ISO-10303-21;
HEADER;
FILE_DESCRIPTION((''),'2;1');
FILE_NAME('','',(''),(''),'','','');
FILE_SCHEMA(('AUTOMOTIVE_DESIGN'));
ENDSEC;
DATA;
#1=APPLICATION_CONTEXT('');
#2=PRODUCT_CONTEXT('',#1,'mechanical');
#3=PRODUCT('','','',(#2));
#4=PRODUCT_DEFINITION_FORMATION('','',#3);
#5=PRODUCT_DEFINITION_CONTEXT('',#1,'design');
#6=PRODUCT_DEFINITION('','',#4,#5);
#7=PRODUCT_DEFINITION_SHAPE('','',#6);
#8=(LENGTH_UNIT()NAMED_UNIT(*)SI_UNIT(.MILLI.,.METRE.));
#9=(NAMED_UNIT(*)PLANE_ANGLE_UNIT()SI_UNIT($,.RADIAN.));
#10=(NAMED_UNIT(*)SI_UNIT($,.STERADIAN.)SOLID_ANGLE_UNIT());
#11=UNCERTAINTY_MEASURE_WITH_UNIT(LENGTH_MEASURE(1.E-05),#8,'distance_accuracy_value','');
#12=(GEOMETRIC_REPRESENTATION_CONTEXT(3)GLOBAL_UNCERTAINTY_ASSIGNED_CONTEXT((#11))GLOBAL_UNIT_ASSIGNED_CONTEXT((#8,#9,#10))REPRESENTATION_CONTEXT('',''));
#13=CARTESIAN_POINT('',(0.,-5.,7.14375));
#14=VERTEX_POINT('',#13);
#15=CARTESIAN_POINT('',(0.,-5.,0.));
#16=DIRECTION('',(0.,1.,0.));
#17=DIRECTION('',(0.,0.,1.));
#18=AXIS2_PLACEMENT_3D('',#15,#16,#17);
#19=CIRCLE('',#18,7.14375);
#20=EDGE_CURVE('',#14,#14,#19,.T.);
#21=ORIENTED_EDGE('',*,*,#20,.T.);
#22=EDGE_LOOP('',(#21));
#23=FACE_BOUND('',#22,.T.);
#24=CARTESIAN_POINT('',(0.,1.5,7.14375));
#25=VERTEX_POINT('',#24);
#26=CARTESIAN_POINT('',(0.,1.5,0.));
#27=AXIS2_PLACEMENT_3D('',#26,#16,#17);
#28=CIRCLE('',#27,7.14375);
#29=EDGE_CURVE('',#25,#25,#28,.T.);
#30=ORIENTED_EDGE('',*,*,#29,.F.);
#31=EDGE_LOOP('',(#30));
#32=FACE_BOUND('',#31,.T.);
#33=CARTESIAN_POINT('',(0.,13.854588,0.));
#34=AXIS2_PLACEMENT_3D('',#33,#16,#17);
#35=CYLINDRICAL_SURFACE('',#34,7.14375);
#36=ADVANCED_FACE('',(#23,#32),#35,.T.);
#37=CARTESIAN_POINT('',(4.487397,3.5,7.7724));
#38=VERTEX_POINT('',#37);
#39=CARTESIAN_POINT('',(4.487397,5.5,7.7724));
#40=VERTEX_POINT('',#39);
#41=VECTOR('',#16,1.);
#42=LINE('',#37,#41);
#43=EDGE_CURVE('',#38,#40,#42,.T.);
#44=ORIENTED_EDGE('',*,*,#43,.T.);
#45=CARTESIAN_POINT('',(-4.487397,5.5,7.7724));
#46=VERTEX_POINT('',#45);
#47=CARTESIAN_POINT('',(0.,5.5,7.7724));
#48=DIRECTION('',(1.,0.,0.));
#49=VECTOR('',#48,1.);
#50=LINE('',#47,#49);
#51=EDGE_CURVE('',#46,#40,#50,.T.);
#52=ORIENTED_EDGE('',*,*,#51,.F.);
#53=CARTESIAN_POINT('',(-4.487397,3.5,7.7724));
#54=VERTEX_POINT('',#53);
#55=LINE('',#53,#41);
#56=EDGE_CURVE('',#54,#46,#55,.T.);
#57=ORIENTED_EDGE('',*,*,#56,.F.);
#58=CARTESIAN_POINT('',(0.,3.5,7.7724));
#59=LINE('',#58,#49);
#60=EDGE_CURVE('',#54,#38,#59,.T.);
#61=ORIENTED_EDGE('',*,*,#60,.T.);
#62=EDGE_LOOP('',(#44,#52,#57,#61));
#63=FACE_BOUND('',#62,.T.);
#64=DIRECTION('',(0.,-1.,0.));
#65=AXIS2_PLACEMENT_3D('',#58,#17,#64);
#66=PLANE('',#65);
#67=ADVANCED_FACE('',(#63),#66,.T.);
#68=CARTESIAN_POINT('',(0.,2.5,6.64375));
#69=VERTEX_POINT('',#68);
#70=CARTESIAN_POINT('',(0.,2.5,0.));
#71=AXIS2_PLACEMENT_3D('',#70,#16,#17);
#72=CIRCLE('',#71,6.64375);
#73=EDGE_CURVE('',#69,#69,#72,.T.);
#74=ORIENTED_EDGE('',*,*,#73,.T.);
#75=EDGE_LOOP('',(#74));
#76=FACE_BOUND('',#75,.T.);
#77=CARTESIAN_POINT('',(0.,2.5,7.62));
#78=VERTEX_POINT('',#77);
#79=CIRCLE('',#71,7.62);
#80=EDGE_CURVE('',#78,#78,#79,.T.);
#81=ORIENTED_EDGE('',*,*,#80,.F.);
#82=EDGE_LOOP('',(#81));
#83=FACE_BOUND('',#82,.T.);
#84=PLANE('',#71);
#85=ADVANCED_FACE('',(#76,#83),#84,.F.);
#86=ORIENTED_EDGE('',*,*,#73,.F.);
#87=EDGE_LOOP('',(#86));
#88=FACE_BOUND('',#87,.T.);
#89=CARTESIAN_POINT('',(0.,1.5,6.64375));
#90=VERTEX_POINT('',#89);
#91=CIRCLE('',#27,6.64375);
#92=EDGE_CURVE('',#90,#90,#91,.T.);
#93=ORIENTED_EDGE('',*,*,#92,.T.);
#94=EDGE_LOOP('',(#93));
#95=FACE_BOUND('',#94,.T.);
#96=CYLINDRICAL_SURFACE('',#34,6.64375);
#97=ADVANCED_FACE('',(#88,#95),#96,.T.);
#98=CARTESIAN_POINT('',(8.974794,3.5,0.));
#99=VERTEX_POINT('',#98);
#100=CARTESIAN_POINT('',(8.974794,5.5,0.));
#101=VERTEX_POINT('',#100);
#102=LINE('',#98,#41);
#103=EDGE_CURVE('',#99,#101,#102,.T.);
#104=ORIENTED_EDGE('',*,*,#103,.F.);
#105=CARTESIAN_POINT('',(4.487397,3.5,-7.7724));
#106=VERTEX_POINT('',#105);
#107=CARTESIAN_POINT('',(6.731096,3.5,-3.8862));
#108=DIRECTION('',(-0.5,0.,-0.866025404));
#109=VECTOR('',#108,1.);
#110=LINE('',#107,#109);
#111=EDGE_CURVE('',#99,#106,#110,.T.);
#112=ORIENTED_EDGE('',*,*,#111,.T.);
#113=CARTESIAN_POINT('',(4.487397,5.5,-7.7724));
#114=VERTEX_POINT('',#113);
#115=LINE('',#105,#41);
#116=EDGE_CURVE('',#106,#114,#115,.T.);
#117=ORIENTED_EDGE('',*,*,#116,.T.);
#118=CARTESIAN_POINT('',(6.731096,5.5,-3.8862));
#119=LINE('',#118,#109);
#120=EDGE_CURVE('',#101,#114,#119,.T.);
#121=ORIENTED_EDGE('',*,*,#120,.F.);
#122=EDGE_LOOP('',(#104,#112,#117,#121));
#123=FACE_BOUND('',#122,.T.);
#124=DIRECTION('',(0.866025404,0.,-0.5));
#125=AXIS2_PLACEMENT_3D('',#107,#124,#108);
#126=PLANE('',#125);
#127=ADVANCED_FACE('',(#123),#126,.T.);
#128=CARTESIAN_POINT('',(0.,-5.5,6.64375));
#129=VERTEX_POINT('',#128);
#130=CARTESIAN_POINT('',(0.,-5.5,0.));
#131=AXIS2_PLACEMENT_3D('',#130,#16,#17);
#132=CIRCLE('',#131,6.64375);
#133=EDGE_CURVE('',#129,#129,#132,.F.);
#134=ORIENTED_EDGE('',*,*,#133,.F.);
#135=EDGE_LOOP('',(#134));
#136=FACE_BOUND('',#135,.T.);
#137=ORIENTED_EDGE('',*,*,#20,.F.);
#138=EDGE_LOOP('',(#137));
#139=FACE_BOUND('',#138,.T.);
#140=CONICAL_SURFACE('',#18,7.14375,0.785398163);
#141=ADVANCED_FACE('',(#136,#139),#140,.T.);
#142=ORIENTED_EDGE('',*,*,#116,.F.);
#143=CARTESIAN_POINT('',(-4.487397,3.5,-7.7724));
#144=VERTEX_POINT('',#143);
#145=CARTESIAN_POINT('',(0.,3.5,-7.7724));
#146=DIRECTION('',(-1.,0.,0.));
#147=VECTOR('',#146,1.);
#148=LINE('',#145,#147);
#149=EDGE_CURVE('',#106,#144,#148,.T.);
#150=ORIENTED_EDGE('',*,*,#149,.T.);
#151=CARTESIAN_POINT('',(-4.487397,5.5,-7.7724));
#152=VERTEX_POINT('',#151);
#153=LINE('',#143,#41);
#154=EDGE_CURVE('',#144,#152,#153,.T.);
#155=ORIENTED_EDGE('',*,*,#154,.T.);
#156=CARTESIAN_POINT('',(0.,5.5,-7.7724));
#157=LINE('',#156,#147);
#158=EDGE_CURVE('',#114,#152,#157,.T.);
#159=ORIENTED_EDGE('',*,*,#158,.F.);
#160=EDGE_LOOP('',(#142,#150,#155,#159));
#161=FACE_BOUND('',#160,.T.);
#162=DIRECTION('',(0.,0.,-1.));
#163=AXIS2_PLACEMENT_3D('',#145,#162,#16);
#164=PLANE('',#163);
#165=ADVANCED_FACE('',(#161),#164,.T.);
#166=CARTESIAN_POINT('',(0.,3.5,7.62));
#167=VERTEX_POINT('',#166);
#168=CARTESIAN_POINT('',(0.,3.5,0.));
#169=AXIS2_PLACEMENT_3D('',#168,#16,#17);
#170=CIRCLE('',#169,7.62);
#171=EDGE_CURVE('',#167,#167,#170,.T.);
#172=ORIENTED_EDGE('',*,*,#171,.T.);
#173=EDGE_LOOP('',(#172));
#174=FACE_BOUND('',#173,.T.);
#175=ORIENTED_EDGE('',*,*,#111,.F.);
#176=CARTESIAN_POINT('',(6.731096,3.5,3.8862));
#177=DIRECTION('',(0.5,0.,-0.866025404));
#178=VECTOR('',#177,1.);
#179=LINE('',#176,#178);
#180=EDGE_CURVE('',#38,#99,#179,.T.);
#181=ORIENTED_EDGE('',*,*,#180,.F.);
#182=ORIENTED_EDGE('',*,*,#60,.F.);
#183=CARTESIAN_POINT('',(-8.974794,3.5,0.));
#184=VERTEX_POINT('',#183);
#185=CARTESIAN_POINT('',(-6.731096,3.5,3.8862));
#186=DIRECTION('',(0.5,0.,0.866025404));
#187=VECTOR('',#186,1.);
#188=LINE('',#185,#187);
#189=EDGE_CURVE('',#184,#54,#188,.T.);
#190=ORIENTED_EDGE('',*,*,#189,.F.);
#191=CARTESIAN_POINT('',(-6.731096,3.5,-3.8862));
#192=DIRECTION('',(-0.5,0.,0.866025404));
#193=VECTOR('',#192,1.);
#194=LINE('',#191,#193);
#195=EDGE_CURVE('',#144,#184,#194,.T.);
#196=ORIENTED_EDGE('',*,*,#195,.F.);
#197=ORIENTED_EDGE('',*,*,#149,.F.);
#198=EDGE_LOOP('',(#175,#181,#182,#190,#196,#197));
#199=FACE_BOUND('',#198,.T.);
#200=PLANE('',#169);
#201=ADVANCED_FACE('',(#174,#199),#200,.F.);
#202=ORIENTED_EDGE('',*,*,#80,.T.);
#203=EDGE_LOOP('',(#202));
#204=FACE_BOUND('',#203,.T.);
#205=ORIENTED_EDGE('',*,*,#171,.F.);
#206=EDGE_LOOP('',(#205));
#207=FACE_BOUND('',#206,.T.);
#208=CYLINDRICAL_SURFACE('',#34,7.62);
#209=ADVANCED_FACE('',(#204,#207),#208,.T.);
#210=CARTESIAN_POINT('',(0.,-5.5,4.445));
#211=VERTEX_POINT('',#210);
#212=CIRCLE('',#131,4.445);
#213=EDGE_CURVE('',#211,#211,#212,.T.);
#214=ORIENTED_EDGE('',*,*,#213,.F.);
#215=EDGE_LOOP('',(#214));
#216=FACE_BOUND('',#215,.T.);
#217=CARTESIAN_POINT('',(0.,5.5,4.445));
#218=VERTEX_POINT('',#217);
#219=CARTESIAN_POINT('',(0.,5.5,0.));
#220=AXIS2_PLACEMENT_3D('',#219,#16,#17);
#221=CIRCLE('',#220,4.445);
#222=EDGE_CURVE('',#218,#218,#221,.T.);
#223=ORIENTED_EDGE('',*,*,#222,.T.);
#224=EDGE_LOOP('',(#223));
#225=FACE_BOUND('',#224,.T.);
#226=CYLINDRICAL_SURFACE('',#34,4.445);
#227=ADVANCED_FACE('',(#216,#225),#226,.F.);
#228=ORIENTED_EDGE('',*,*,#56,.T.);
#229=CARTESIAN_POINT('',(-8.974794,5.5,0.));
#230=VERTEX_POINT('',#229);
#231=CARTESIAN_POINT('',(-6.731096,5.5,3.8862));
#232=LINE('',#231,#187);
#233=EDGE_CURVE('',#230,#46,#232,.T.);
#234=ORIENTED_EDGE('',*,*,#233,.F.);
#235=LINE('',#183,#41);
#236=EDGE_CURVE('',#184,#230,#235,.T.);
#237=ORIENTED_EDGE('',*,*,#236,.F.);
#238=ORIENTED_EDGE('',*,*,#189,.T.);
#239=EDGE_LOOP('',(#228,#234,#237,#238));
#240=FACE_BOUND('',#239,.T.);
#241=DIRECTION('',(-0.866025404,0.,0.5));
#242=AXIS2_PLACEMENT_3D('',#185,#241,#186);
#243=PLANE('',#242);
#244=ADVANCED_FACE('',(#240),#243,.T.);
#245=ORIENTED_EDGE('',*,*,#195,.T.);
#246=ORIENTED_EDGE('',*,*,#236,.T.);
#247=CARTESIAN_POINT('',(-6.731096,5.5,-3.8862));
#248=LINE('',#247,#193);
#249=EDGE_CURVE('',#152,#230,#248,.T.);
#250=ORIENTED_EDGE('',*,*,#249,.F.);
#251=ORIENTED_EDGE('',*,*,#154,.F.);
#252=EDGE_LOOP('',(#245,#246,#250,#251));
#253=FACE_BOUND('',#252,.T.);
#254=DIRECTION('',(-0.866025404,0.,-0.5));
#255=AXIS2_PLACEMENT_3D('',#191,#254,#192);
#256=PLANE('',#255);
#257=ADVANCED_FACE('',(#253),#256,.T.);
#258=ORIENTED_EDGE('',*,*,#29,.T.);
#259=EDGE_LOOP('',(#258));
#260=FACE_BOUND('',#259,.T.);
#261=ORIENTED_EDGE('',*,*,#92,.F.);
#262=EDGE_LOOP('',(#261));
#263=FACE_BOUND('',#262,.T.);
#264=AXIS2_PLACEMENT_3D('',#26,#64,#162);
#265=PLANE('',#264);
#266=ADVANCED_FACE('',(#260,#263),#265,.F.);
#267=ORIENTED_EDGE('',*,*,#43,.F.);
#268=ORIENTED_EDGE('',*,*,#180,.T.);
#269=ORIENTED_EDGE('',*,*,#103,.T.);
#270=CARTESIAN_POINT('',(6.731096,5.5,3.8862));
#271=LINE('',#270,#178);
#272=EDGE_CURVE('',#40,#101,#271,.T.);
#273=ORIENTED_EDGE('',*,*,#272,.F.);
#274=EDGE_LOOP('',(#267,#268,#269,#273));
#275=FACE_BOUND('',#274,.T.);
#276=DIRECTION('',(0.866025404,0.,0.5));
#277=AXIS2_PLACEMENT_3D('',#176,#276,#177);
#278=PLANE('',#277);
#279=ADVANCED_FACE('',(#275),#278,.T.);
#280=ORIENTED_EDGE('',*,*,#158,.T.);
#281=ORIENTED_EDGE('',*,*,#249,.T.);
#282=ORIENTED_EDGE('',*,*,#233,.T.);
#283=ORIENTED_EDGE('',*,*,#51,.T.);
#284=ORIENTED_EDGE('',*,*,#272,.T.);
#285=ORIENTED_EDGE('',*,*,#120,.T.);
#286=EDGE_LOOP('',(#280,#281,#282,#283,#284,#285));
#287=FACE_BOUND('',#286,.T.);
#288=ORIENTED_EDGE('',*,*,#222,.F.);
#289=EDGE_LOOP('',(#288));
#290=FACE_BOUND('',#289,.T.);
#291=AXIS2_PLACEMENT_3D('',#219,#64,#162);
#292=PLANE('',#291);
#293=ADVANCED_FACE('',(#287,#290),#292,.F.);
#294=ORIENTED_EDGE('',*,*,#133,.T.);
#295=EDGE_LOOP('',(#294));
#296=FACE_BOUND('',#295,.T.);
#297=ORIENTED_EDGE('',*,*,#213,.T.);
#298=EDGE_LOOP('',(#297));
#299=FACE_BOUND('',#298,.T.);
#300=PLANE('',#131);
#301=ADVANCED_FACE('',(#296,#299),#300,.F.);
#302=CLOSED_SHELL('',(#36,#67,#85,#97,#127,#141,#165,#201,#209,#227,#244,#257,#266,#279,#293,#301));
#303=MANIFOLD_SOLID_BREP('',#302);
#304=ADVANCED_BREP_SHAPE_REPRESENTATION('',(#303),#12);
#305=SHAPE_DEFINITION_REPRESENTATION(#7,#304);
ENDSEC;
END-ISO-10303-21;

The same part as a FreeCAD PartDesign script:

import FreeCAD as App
import Part
import Sketcher

V = App.Vector
Q = App.Units.Quantity


def edges_at(feature, points):
    """Names of the edges that pass closest to the given points."""
    edges = feature.Shape.Edges
    near = lambda p: min(range(len(edges)), key=lambda i: edges[i].distToShape(Part.Vertex(*p))[0])
    return sorted({f"Edge{near(p) + 1}" for p in points})


def add_polygon(sketch, points):
    """Adds a closed chain of lines whose ends are joined by coincident constraints."""
    first, n = sketch.GeometryCount, len(points)
    for a, b in zip(points, points[1:] + points[:1]):
        sketch.addGeometry(Part.LineSegment(App.Vector(*a, 0), App.Vector(*b, 0)), False)
    for i in range(n):
        sketch.addConstraint(Sketcher.Constraint("Coincident", first + i, 2, first + (i + 1) % n, 1))

doc = App.newDocument("Part")
body = doc.addObject("PartDesign::Body", "Body")

sketch1 = doc.addObject("Sketcher::SketchObject", "Sketch")
body.addObject(sketch1)
sketch1.AttachmentSupport = (doc.YZ_Plane, [""])
sketch1.MapMode = "FlatFace"
add_polygon(sketch1, [(2.5, -7.62), (5.5, -7.62), (5.5, -4.445), (-5.5, -4.445), (-5.5, -7.14375), (1.5, -7.14375), (1.5, -6.64375), (2.5, -6.64375)])
sketch1.addConstraint(Sketcher.Constraint("Horizontal", 0))
sketch1.addConstraint(Sketcher.Constraint("Vertical", 1))
sketch1.addConstraint(Sketcher.Constraint("Horizontal", 2))
sketch1.addConstraint(Sketcher.Constraint("Vertical", 3))
sketch1.addConstraint(Sketcher.Constraint("Horizontal", 4))
sketch1.addConstraint(Sketcher.Constraint("Vertical", 5))
sketch1.addConstraint(Sketcher.Constraint("Horizontal", 6))
sketch1.addConstraint(Sketcher.Constraint("Vertical", 7))
sketch1.addConstraint(Sketcher.Constraint("DistanceX", 0, 1, 0, 2, 3.0))
sketch1.addConstraint(Sketcher.Constraint("DistanceX", 2, 2, 2, 1, 11.0))
sketch1.addConstraint(Sketcher.Constraint("DistanceX", 4, 1, 4, 2, 7.0))
sketch1.addConstraint(Sketcher.Constraint("DistanceY", 5, 1, 5, 2, 0.5))
sketch1.addConstraint(Sketcher.Constraint("DistanceX", -1, 1, 0, 2, 5.5))
sketch1.addConstraint(Sketcher.Constraint("DistanceY", 1, 1, 1, 2, 3.175))
sketch1.addConstraint(Sketcher.Constraint("DistanceY", 0, 2, -1, 1, 7.62))
sketch1.addConstraint(Sketcher.Constraint("DistanceY", 3, 2, 3, 1, 2.69875))
revolution = doc.addObject("PartDesign::Revolution", "Revolution")
body.addObject(revolution)
revolution.Profile = sketch1
revolution.ReferenceAxis = (sketch1, ["H_Axis"])
revolution.Angle = 360

sketch2 = doc.addObject("Sketcher::SketchObject", "Sketch001")
body.addObject(sketch2)
sketch2.AttachmentSupport = (doc.XZ_Plane, [""])
sketch2.MapMode = "FlatFace"
sketch2.AttachmentOffset = App.Placement(V(0, 0, -5.5), App.Rotation())
add_polygon(sketch2, [(4.487397, -7.7724), (-4.487397, -7.7724), (-8.974794, 0), (-4.487397, 7.7724), (4.487397, 7.7724), (8.974794, 0)])
sketch2.addGeometry(Part.Circle(V(0, 0, 0), V(0, 0, 1), 4.445), False)
sketch2.addConstraint(Sketcher.Constraint("Horizontal", 0))
sketch2.addConstraint(Sketcher.Constraint("Horizontal", 3))
sketch2.addConstraint(Sketcher.Constraint("Coincident", 6, 3, -1, 1))
sketch2.addConstraint(Sketcher.Constraint("Symmetric", 0, 2, 3, 2, -1, 1))
sketch2.addConstraint(Sketcher.Constraint("Symmetric", 1, 2, 4, 2, -1, 1))
sketch2.addConstraint(Sketcher.Constraint("PointOnObject", 1, 2, -1))
sketch2.addConstraint(Sketcher.Constraint("Parallel", 2, 5))
sketch2.addConstraint(Sketcher.Constraint("Vertical", 0, 2, 2, 2))
sketch2.addConstraint(Sketcher.Constraint("Diameter", 6, 8.89))
sketch2.addConstraint(Sketcher.Constraint("Angle", 1, Q("120 deg")))
sketch2.addConstraint(Sketcher.Constraint("DistanceY", 0, 2, -1, 1, 7.7724))
sketch2.addConstraint(Sketcher.Constraint("DistanceX", 0, 2, 0, 1, 8.974794))
pad1 = doc.addObject("PartDesign::Pad", "Pad")
body.addObject(pad1)
pad1.Profile = sketch2
pad1.Length = 2
doc.recompute()

chamfer = doc.addObject("PartDesign::Chamfer", "Chamfer")
body.addObject(chamfer)
chamfer.Base = (pad1, edges_at(pad1, [(0, -5.5, -7.144)]))
chamfer.Size = 0.5

doc.recompute()
